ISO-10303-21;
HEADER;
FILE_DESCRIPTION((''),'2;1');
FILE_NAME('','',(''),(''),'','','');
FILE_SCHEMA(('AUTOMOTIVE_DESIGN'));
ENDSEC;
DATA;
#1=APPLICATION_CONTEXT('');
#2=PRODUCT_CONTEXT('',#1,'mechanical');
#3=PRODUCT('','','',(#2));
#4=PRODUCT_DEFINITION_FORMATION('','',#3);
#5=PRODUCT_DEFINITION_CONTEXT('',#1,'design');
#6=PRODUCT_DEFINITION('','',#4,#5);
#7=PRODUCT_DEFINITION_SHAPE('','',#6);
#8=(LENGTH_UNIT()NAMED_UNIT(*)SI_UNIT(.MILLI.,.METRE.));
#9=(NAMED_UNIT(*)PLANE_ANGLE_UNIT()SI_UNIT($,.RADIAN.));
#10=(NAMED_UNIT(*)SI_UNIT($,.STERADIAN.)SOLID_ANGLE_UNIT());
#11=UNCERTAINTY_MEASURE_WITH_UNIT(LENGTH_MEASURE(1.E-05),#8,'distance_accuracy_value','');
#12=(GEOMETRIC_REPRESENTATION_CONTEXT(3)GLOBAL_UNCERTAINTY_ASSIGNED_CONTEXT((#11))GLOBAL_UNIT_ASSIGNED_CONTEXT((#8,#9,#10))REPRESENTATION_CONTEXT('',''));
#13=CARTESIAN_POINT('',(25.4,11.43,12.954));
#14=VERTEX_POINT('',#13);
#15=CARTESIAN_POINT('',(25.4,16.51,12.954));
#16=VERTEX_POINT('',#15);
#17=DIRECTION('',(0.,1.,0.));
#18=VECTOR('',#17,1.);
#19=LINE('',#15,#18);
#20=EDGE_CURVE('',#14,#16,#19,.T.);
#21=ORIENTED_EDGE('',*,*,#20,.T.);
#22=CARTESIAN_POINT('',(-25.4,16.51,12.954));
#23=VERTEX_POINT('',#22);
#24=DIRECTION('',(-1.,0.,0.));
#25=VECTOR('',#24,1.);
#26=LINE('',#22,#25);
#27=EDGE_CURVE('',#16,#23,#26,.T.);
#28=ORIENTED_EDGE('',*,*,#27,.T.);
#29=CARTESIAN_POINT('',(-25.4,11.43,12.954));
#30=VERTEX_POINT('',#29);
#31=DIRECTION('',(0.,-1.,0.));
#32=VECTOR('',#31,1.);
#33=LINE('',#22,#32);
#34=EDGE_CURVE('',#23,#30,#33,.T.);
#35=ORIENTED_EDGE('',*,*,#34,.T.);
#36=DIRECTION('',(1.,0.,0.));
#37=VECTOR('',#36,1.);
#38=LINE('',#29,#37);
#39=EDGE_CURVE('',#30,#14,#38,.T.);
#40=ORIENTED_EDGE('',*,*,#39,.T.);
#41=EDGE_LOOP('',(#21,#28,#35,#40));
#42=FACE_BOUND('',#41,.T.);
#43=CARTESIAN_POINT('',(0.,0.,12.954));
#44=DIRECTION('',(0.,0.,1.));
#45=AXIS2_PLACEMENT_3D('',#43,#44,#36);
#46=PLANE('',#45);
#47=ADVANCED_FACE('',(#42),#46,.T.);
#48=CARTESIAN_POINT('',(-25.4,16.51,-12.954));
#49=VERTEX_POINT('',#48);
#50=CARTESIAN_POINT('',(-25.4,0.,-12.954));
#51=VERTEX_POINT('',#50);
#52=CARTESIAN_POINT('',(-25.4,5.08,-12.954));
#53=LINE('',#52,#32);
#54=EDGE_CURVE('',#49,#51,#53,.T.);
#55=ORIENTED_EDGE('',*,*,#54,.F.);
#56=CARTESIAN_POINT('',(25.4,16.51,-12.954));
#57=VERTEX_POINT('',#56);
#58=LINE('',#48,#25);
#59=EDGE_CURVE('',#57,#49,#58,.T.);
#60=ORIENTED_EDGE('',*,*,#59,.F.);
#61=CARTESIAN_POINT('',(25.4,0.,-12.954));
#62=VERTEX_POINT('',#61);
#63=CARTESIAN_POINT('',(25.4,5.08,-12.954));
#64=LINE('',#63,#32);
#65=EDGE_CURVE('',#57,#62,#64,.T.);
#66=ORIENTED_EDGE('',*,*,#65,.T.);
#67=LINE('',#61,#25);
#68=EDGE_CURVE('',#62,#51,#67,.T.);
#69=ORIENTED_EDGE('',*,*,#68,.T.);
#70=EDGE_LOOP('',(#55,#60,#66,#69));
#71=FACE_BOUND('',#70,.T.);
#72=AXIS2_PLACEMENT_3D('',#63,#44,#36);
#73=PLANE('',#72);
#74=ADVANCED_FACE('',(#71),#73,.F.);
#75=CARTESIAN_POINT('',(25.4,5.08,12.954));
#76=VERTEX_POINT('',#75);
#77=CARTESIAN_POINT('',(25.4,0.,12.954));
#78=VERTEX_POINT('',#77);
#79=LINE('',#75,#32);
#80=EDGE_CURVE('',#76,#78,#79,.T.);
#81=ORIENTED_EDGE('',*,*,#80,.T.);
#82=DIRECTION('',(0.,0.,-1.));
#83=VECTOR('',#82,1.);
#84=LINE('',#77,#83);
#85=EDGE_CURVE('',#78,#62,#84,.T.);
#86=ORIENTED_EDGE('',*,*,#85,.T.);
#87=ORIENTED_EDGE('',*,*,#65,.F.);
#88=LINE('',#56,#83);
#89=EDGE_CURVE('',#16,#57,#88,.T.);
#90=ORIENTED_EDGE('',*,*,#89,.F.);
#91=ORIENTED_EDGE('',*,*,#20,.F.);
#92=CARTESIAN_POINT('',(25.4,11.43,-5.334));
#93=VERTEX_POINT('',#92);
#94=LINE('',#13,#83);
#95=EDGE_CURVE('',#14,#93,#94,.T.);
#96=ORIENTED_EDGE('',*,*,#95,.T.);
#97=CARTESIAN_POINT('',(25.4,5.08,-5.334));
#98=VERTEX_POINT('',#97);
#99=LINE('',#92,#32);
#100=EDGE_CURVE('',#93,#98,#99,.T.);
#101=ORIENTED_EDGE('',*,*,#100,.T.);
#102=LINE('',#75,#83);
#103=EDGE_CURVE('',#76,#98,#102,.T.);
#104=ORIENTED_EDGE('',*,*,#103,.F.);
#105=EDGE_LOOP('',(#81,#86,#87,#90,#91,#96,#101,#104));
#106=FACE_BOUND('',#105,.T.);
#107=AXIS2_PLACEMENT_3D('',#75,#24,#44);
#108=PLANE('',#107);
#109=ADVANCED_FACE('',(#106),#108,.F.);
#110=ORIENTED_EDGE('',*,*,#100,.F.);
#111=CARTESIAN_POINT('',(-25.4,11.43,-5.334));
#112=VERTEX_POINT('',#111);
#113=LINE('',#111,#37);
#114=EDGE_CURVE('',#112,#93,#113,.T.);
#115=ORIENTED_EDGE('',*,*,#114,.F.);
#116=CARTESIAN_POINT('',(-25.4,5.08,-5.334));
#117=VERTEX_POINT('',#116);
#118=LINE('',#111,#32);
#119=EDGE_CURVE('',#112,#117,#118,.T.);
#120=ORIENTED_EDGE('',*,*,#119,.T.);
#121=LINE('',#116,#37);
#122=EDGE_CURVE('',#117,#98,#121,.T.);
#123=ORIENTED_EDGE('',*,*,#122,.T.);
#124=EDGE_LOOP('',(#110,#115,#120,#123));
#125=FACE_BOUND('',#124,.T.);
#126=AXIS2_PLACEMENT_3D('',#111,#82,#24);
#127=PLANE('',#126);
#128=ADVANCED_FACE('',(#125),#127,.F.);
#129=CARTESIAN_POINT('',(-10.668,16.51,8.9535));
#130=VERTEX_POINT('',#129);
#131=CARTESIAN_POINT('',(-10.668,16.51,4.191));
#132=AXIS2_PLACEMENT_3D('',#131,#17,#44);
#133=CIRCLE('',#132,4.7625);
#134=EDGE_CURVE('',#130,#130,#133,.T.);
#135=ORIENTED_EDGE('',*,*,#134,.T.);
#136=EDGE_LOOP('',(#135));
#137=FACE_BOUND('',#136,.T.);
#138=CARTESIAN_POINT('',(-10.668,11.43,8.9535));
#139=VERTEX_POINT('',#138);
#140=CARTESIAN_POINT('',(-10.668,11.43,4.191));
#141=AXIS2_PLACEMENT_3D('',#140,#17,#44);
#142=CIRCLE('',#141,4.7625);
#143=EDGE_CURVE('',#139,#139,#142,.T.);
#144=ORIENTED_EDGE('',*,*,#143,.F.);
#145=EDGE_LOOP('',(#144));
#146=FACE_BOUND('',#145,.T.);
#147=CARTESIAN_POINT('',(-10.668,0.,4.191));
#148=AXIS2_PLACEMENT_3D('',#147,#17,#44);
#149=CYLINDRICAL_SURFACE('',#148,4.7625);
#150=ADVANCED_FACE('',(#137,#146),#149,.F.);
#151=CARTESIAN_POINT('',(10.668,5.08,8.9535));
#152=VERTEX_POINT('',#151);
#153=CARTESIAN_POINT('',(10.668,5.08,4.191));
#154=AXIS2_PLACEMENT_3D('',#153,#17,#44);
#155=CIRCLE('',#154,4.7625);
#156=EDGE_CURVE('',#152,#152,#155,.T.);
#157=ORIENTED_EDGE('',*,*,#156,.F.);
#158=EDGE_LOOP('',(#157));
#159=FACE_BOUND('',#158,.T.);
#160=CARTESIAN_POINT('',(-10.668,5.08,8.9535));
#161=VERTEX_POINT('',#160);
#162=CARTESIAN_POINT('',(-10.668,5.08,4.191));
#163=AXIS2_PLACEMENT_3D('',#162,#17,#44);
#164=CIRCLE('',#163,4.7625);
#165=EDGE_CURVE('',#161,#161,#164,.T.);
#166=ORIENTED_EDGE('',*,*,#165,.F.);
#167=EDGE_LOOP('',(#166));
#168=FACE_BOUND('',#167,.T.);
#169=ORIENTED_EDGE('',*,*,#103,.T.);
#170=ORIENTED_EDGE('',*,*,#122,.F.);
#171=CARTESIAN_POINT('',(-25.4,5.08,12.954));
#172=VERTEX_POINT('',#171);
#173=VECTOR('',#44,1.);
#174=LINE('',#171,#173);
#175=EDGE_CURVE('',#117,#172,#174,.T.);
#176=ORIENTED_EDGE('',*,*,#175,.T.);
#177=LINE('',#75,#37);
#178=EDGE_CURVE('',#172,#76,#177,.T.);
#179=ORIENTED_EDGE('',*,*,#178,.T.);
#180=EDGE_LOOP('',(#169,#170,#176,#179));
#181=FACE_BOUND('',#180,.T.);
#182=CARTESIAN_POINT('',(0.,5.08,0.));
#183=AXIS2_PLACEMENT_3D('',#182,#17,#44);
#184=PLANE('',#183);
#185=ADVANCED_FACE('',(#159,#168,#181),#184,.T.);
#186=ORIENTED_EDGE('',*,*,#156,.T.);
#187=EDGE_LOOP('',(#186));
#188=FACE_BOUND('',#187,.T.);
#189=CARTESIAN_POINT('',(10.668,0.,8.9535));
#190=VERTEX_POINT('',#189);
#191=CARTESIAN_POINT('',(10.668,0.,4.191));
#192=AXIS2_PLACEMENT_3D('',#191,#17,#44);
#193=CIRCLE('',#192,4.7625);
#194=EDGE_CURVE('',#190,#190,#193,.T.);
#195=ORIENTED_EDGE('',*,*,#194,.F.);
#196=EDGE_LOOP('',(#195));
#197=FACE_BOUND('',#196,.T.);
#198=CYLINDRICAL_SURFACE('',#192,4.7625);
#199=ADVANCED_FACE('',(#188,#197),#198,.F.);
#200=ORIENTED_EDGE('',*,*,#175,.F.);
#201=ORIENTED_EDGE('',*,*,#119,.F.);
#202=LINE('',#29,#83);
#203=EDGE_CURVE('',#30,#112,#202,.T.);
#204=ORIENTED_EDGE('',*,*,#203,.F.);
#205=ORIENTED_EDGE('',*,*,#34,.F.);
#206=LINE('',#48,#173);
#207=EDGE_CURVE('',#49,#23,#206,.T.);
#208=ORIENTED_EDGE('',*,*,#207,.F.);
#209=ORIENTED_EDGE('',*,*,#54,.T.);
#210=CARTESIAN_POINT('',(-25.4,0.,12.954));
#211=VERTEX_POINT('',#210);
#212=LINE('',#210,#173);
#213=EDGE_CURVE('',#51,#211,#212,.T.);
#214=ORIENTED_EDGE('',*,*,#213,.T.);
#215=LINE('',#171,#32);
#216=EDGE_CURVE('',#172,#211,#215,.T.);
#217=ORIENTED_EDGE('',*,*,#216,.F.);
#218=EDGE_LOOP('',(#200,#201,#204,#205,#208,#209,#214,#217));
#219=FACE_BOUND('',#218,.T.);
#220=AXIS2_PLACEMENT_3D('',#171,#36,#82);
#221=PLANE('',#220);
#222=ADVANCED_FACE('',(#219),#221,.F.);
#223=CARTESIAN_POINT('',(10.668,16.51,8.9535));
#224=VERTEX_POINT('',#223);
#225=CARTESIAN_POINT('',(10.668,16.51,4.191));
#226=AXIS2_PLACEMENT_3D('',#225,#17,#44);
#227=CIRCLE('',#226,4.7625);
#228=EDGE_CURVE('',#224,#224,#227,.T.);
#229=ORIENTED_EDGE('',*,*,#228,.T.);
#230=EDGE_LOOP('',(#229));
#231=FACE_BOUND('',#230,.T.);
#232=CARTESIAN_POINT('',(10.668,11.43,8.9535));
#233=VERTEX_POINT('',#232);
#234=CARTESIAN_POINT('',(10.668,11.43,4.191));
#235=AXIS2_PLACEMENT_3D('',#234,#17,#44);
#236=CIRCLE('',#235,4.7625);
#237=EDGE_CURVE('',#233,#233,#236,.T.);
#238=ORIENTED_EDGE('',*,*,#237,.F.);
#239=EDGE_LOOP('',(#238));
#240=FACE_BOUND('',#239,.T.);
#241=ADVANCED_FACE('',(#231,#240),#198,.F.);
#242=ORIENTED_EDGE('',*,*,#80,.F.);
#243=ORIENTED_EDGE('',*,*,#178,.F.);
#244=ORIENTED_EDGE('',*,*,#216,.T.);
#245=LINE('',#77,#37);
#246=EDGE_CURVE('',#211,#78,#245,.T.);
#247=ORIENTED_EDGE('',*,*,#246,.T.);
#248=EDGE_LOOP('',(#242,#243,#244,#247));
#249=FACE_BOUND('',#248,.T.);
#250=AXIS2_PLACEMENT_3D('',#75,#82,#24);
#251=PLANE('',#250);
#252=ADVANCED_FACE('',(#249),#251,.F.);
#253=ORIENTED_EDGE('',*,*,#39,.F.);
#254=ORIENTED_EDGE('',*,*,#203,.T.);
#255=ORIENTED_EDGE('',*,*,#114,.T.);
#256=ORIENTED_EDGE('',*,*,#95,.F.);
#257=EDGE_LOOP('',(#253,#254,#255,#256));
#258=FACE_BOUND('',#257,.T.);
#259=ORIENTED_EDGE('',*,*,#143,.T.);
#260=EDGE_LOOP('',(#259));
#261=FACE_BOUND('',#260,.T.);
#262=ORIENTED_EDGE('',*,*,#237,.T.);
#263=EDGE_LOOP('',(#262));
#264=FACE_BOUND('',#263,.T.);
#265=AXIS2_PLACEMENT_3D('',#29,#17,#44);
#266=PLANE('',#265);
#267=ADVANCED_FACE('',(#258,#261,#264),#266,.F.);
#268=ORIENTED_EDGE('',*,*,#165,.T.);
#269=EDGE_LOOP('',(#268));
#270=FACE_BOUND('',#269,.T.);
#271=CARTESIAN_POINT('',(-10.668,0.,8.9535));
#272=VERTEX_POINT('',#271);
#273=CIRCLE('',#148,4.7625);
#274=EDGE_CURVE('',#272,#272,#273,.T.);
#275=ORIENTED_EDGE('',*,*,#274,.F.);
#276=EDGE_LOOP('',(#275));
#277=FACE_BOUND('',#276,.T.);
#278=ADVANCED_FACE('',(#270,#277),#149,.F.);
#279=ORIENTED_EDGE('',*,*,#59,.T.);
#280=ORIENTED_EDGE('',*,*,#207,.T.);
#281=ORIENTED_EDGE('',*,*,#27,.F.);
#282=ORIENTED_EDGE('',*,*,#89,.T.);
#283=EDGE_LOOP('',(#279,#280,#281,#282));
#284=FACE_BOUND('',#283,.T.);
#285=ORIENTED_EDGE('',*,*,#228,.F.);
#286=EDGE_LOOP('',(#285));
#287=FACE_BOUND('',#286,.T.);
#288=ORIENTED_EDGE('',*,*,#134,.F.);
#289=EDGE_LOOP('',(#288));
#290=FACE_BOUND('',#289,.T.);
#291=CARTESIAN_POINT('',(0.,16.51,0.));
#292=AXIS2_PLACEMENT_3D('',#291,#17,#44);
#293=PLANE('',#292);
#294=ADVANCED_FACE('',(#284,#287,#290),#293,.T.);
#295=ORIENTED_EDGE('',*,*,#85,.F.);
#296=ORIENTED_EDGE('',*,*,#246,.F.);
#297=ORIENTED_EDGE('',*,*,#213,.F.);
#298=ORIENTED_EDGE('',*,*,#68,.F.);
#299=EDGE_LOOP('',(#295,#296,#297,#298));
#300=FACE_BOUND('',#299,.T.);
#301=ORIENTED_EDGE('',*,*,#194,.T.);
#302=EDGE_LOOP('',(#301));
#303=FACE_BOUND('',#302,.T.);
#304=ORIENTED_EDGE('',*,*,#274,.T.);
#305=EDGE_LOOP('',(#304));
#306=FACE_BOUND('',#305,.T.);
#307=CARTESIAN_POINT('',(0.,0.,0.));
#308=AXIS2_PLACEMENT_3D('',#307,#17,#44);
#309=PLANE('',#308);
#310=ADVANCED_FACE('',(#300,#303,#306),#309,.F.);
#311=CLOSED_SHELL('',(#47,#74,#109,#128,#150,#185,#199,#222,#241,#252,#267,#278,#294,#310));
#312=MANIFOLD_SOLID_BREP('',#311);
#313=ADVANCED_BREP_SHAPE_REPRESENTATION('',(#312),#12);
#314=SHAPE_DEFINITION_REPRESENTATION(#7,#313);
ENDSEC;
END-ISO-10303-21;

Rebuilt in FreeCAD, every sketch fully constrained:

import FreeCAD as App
import Part
import Sketcher
Q = App.Units.Quantity

doc = App.newDocument("Part")
params = doc.addObject("Spreadsheet::Sheet", "Params")
for row, (alias, value) in enumerate([
    ("sketch1_width", "2 in"),
    ("sketch1_height", "1.02 in"),
    ("pad1_length", "0.2 in"),
    ("sketch2_width", "2 in"),
    ("sketch2_height", "0.3 in"),
    ("pad2_length", "0.25 in"),
    ("sketch3_width", "2 in"),
    ("sketch3_height", "0.3 in"),
    ("pad3_length", "0.2 in"),
    ("sketch4_width", "2 in"),
    ("sketch4_height", "0.2 in"),
    ("pad4_length", "0.72 in"),
    ("sketch5_diameter", "0.375 in"),
], start=1):
    params.set(f"A{row}", alias)
    params.set(f"B{row}", "=" + value)
    params.setAlias(f"B{row}", alias)

body = doc.addObject("PartDesign::Body", "Body")

sketch1 = body.newObject("Sketcher::SketchObject", "Sketch")
sketch1.AttachmentSupport = (doc.getObject("XZ_Plane"), [""])
sketch1.MapMode = "FlatFace"
sketch1.addGeometry(Part.LineSegment(App.Vector(-25, -13, 0), App.Vector(-25, 13, 0)), False)
sketch1.addGeometry(Part.LineSegment(App.Vector(-25, 13, 0), App.Vector(25, 13, 0)), False)
sketch1.addGeometry(Part.LineSegment(App.Vector(25, 13, 0), App.Vector(25, -13, 0)), False)
sketch1.addGeometry(Part.LineSegment(App.Vector(25, -13, 0), App.Vector(-25, -13, 0)), False)
sketch1.addConstraint(Sketcher.Constraint("Coincident", 0, 2, 1, 1))
sketch1.addConstraint(Sketcher.Constraint("Coincident", 1, 2, 2, 1))
sketch1.addConstraint(Sketcher.Constraint("Coincident", 2, 2, 3, 1))
sketch1.addConstraint(Sketcher.Constraint("Coincident", 3, 2, 0, 1))
sketch1.addConstraint(Sketcher.Constraint("Vertical", 0))
sketch1.addConstraint(Sketcher.Constraint("Horizontal", 1))
sketch1.addConstraint(Sketcher.Constraint("Vertical", 2))
sketch1.addConstraint(Sketcher.Constraint("Horizontal", 3))
sketch1.addConstraint(Sketcher.Constraint("Symmetric", 0, 2, 2, 2, -1, 1))
sketch1.addConstraint(Sketcher.Constraint("DistanceX", 1, 1, 1, 2, Q("2 in")))
sketch1.addConstraint(Sketcher.Constraint("DistanceY", 0, 1, 0, 2, Q("1.02 in")))
sketch1.setExpression("Constraints[9]", "Params.sketch1_width")
sketch1.setExpression("Constraints[10]", "Params.sketch1_height")
pad1 = body.newObject("PartDesign::Pad", "Pad")
pad1.Profile = sketch1
pad1.setExpression("Length", "Params.pad1_length")
pad1.Reversed = True

sketch2 = body.newObject("Sketcher::SketchObject", "Sketch001")
sketch2.AttachmentSupport = (doc.getObject("XZ_Plane"), [""])
sketch2.MapMode = "FlatFace"
sketch2.AttachmentOffset = App.Placement(App.Vector(0, 0, -0.2 * 25.4), App.Rotation())
sketch2.addGeometry(Part.LineSegment(App.Vector(-25, -13, 0), App.Vector(-25, -5, 0)), False)
sketch2.addGeometry(Part.LineSegment(App.Vector(-25, -5, 0), App.Vector(25, -5, 0)), False)
sketch2.addGeometry(Part.LineSegment(App.Vector(25, -5, 0), App.Vector(25, -13, 0)), False)
sketch2.addGeometry(Part.LineSegment(App.Vector(25, -13, 0), App.Vector(-25, -13, 0)), False)
sketch2.addConstraint(Sketcher.Constraint("Coincident", 0, 2, 1, 1))
sketch2.addConstraint(Sketcher.Constraint("Coincident", 1, 2, 2, 1))
sketch2.addConstraint(Sketcher.Constraint("Coincident", 2, 2, 3, 1))
sketch2.addConstraint(Sketcher.Constraint("Coincident", 3, 2, 0, 1))
sketch2.addConstraint(Sketcher.Constraint("Vertical", 0))
sketch2.addConstraint(Sketcher.Constraint("Horizontal", 1))
sketch2.addConstraint(Sketcher.Constraint("Vertical", 2))
sketch2.addConstraint(Sketcher.Constraint("Horizontal", 3))
sketch2.addConstraint(Sketcher.Constraint("DistanceX", 1, 1, 1, 2, Q("2 in")))
sketch2.addConstraint(Sketcher.Constraint("DistanceY", 0, 1, 0, 2, Q("0.3 in")))
sketch2.addConstraint(Sketcher.Constraint("DistanceX", 0, 2, -1, 1, Q("1 in")))
sketch2.addConstraint(Sketcher.Constraint("DistanceY", 0, 2, -1, 1, Q("0.21 in")))
sketch2.setExpression("Constraints[8]", "Params.sketch2_width")
sketch2.setExpression("Constraints[9]", "Params.sketch2_height")
pad2 = body.newObject("PartDesign::Pad", "Pad001")
pad2.Profile = sketch2
pad2.setExpression("Length", "Params.pad2_length")
pad2.Reversed = True

sketch3 = body.newObject("Sketcher::SketchObject", "Sketch002")
sketch3.AttachmentSupport = (doc.getObject("XZ_Plane"), [""])
sketch3.MapMode = "FlatFace"
sketch3.AttachmentOffset = App.Placement(App.Vector(0, 0, -0.45 * 25.4), App.Rotation())
sketch3.addGeometry(Part.LineSegment(App.Vector(-25, -13, 0), App.Vector(-25, -5, 0)), False)
sketch3.addGeometry(Part.LineSegment(App.Vector(-25, -5, 0), App.Vector(25, -5, 0)), False)
sketch3.addGeometry(Part.LineSegment(App.Vector(25, -5, 0), App.Vector(25, -13, 0)), False)
sketch3.addGeometry(Part.LineSegment(App.Vector(25, -13, 0), App.Vector(-25, -13, 0)), False)
sketch3.addConstraint(Sketcher.Constraint("Coincident", 0, 2, 1, 1))
sketch3.addConstraint(Sketcher.Constraint("Coincident", 1, 2, 2, 1))
sketch3.addConstraint(Sketcher.Constraint("Coincident", 2, 2, 3, 1))
sketch3.addConstraint(Sketcher.Constraint("Coincident", 3, 2, 0, 1))
sketch3.addConstraint(Sketcher.Constraint("Vertical", 0))
sketch3.addConstraint(Sketcher.Constraint("Horizontal", 1))
sketch3.addConstraint(Sketcher.Constraint("Vertical", 2))
sketch3.addConstraint(Sketcher.Constraint("Horizontal", 3))
sketch3.addConstraint(Sketcher.Constraint("DistanceX", 1, 1, 1, 2, Q("2 in")))
sketch3.addConstraint(Sketcher.Constraint("DistanceY", 0, 1, 0, 2, Q("0.3 in")))
sketch3.addConstraint(Sketcher.Constraint("DistanceX", 0, 2, -1, 1, Q("1 in")))
sketch3.addConstraint(Sketcher.Constraint("DistanceY", 0, 2, -1, 1, Q("0.21 in")))
sketch3.setExpression("Constraints[8]", "Params.sketch3_width")
sketch3.setExpression("Constraints[9]", "Params.sketch3_height")
pad3 = body.newObject("PartDesign::Pad", "Pad002")
pad3.Profile = sketch3
pad3.setExpression("Length", "Params.pad3_length")
pad3.Reversed = True

sketch4 = body.newObject("Sketcher::SketchObject", "Sketch003")
sketch4.AttachmentSupport = (doc.getObject("XY_Plane"), [""])
sketch4.MapMode = "FlatFace"
sketch4.AttachmentOffset = App.Placement(App.Vector(0, 0, -0.21 * 25.4), App.Rotation())
sketch4.addGeometry(Part.LineSegment(App.Vector(-25, 17, 0), App.Vector(-25, 11, 0)), False)
sketch4.addGeometry(Part.LineSegment(App.Vector(-25, 11, 0), App.Vector(25, 11, 0)), False)
sketch4.addGeometry(Part.LineSegment(App.Vector(25, 11, 0), App.Vector(25, 17, 0)), False)
sketch4.addGeometry(Part.LineSegment(App.Vector(25, 17, 0), App.Vector(-25, 17, 0)), False)
sketch4.addConstraint(Sketcher.Constraint("Coincident", 0, 2, 1, 1))
sketch4.addConstraint(Sketcher.Constraint("Coincident", 1, 2, 2, 1))
sketch4.addConstraint(Sketcher.Constraint("Coincident", 2, 2, 3, 1))
sketch4.addConstraint(Sketcher.Constraint("Coincident", 3, 2, 0, 1))
sketch4.addConstraint(Sketcher.Constraint("Vertical", 0))
sketch4.addConstraint(Sketcher.Constraint("Horizontal", 1))
sketch4.addConstraint(Sketcher.Constraint("Vertical", 2))
sketch4.addConstraint(Sketcher.Constraint("Horizontal", 3))
sketch4.addConstraint(Sketcher.Constraint("DistanceX", 1, 1, 1, 2, Q("2 in")))
sketch4.addConstraint(Sketcher.Constraint("DistanceY", 0, 2, 0, 1, Q("0.2 in")))
sketch4.addConstraint(Sketcher.Constraint("DistanceX", 0, 2, -1, 1, Q("1 in")))
sketch4.addConstraint(Sketcher.Constraint("DistanceY", -1, 1, 0, 2, Q("0.45 in")))
sketch4.setExpression("Constraints[8]", "Params.sketch4_width")
sketch4.setExpression("Constraints[9]", "Params.sketch4_height")
pad4 = body.newObject("PartDesign::Pad", "Pad003")
pad4.Profile = sketch4
pad4.setExpression("Length", "Params.pad4_length")

sketch5 = body.newObject("Sketcher::SketchObject", "Sketch004")
sketch5.AttachmentSupport = (doc.getObject("XZ_Plane"), [""])
sketch5.MapMode = "FlatFace"
sketch5.AttachmentOffset = App.Placement(App.Vector(0, 0, -0.65 * 25.4), App.Rotation())
sketch5.addGeometry(Part.Circle(App.Vector(-10.7, 4.2, 0), App.Vector(0, 0, 1), 4.8), False)
sketch5.addGeometry(Part.Circle(App.Vector(10.7, 4.2, 0), App.Vector(0, 0, 1), 4.8), False)
sketch5.addConstraint(Sketcher.Constraint("Equal", 0, 1))
sketch5.addConstraint(Sketcher.Constraint("Symmetric", 0, 3, 1, 3, -2))
sketch5.addConstraint(Sketcher.Constraint("Diameter", 0, Q("0.375 in")))
sketch5.addConstraint(Sketcher.Constraint("DistanceX", 0, 3, -1, 1, Q("0.42 in")))
sketch5.addConstraint(Sketcher.Constraint("DistanceY", -1, 1, 0, 3, Q("0.165 in")))
sketch5.setExpression("Constraints[2]", "Params.sketch5_diameter")
pocket1 = body.newObject("PartDesign::Pocket", "Pocket")
pocket1.Profile = sketch5
pocket1.Type = "ThroughAll"
pocket1.Reversed = True

doc.recompute()
